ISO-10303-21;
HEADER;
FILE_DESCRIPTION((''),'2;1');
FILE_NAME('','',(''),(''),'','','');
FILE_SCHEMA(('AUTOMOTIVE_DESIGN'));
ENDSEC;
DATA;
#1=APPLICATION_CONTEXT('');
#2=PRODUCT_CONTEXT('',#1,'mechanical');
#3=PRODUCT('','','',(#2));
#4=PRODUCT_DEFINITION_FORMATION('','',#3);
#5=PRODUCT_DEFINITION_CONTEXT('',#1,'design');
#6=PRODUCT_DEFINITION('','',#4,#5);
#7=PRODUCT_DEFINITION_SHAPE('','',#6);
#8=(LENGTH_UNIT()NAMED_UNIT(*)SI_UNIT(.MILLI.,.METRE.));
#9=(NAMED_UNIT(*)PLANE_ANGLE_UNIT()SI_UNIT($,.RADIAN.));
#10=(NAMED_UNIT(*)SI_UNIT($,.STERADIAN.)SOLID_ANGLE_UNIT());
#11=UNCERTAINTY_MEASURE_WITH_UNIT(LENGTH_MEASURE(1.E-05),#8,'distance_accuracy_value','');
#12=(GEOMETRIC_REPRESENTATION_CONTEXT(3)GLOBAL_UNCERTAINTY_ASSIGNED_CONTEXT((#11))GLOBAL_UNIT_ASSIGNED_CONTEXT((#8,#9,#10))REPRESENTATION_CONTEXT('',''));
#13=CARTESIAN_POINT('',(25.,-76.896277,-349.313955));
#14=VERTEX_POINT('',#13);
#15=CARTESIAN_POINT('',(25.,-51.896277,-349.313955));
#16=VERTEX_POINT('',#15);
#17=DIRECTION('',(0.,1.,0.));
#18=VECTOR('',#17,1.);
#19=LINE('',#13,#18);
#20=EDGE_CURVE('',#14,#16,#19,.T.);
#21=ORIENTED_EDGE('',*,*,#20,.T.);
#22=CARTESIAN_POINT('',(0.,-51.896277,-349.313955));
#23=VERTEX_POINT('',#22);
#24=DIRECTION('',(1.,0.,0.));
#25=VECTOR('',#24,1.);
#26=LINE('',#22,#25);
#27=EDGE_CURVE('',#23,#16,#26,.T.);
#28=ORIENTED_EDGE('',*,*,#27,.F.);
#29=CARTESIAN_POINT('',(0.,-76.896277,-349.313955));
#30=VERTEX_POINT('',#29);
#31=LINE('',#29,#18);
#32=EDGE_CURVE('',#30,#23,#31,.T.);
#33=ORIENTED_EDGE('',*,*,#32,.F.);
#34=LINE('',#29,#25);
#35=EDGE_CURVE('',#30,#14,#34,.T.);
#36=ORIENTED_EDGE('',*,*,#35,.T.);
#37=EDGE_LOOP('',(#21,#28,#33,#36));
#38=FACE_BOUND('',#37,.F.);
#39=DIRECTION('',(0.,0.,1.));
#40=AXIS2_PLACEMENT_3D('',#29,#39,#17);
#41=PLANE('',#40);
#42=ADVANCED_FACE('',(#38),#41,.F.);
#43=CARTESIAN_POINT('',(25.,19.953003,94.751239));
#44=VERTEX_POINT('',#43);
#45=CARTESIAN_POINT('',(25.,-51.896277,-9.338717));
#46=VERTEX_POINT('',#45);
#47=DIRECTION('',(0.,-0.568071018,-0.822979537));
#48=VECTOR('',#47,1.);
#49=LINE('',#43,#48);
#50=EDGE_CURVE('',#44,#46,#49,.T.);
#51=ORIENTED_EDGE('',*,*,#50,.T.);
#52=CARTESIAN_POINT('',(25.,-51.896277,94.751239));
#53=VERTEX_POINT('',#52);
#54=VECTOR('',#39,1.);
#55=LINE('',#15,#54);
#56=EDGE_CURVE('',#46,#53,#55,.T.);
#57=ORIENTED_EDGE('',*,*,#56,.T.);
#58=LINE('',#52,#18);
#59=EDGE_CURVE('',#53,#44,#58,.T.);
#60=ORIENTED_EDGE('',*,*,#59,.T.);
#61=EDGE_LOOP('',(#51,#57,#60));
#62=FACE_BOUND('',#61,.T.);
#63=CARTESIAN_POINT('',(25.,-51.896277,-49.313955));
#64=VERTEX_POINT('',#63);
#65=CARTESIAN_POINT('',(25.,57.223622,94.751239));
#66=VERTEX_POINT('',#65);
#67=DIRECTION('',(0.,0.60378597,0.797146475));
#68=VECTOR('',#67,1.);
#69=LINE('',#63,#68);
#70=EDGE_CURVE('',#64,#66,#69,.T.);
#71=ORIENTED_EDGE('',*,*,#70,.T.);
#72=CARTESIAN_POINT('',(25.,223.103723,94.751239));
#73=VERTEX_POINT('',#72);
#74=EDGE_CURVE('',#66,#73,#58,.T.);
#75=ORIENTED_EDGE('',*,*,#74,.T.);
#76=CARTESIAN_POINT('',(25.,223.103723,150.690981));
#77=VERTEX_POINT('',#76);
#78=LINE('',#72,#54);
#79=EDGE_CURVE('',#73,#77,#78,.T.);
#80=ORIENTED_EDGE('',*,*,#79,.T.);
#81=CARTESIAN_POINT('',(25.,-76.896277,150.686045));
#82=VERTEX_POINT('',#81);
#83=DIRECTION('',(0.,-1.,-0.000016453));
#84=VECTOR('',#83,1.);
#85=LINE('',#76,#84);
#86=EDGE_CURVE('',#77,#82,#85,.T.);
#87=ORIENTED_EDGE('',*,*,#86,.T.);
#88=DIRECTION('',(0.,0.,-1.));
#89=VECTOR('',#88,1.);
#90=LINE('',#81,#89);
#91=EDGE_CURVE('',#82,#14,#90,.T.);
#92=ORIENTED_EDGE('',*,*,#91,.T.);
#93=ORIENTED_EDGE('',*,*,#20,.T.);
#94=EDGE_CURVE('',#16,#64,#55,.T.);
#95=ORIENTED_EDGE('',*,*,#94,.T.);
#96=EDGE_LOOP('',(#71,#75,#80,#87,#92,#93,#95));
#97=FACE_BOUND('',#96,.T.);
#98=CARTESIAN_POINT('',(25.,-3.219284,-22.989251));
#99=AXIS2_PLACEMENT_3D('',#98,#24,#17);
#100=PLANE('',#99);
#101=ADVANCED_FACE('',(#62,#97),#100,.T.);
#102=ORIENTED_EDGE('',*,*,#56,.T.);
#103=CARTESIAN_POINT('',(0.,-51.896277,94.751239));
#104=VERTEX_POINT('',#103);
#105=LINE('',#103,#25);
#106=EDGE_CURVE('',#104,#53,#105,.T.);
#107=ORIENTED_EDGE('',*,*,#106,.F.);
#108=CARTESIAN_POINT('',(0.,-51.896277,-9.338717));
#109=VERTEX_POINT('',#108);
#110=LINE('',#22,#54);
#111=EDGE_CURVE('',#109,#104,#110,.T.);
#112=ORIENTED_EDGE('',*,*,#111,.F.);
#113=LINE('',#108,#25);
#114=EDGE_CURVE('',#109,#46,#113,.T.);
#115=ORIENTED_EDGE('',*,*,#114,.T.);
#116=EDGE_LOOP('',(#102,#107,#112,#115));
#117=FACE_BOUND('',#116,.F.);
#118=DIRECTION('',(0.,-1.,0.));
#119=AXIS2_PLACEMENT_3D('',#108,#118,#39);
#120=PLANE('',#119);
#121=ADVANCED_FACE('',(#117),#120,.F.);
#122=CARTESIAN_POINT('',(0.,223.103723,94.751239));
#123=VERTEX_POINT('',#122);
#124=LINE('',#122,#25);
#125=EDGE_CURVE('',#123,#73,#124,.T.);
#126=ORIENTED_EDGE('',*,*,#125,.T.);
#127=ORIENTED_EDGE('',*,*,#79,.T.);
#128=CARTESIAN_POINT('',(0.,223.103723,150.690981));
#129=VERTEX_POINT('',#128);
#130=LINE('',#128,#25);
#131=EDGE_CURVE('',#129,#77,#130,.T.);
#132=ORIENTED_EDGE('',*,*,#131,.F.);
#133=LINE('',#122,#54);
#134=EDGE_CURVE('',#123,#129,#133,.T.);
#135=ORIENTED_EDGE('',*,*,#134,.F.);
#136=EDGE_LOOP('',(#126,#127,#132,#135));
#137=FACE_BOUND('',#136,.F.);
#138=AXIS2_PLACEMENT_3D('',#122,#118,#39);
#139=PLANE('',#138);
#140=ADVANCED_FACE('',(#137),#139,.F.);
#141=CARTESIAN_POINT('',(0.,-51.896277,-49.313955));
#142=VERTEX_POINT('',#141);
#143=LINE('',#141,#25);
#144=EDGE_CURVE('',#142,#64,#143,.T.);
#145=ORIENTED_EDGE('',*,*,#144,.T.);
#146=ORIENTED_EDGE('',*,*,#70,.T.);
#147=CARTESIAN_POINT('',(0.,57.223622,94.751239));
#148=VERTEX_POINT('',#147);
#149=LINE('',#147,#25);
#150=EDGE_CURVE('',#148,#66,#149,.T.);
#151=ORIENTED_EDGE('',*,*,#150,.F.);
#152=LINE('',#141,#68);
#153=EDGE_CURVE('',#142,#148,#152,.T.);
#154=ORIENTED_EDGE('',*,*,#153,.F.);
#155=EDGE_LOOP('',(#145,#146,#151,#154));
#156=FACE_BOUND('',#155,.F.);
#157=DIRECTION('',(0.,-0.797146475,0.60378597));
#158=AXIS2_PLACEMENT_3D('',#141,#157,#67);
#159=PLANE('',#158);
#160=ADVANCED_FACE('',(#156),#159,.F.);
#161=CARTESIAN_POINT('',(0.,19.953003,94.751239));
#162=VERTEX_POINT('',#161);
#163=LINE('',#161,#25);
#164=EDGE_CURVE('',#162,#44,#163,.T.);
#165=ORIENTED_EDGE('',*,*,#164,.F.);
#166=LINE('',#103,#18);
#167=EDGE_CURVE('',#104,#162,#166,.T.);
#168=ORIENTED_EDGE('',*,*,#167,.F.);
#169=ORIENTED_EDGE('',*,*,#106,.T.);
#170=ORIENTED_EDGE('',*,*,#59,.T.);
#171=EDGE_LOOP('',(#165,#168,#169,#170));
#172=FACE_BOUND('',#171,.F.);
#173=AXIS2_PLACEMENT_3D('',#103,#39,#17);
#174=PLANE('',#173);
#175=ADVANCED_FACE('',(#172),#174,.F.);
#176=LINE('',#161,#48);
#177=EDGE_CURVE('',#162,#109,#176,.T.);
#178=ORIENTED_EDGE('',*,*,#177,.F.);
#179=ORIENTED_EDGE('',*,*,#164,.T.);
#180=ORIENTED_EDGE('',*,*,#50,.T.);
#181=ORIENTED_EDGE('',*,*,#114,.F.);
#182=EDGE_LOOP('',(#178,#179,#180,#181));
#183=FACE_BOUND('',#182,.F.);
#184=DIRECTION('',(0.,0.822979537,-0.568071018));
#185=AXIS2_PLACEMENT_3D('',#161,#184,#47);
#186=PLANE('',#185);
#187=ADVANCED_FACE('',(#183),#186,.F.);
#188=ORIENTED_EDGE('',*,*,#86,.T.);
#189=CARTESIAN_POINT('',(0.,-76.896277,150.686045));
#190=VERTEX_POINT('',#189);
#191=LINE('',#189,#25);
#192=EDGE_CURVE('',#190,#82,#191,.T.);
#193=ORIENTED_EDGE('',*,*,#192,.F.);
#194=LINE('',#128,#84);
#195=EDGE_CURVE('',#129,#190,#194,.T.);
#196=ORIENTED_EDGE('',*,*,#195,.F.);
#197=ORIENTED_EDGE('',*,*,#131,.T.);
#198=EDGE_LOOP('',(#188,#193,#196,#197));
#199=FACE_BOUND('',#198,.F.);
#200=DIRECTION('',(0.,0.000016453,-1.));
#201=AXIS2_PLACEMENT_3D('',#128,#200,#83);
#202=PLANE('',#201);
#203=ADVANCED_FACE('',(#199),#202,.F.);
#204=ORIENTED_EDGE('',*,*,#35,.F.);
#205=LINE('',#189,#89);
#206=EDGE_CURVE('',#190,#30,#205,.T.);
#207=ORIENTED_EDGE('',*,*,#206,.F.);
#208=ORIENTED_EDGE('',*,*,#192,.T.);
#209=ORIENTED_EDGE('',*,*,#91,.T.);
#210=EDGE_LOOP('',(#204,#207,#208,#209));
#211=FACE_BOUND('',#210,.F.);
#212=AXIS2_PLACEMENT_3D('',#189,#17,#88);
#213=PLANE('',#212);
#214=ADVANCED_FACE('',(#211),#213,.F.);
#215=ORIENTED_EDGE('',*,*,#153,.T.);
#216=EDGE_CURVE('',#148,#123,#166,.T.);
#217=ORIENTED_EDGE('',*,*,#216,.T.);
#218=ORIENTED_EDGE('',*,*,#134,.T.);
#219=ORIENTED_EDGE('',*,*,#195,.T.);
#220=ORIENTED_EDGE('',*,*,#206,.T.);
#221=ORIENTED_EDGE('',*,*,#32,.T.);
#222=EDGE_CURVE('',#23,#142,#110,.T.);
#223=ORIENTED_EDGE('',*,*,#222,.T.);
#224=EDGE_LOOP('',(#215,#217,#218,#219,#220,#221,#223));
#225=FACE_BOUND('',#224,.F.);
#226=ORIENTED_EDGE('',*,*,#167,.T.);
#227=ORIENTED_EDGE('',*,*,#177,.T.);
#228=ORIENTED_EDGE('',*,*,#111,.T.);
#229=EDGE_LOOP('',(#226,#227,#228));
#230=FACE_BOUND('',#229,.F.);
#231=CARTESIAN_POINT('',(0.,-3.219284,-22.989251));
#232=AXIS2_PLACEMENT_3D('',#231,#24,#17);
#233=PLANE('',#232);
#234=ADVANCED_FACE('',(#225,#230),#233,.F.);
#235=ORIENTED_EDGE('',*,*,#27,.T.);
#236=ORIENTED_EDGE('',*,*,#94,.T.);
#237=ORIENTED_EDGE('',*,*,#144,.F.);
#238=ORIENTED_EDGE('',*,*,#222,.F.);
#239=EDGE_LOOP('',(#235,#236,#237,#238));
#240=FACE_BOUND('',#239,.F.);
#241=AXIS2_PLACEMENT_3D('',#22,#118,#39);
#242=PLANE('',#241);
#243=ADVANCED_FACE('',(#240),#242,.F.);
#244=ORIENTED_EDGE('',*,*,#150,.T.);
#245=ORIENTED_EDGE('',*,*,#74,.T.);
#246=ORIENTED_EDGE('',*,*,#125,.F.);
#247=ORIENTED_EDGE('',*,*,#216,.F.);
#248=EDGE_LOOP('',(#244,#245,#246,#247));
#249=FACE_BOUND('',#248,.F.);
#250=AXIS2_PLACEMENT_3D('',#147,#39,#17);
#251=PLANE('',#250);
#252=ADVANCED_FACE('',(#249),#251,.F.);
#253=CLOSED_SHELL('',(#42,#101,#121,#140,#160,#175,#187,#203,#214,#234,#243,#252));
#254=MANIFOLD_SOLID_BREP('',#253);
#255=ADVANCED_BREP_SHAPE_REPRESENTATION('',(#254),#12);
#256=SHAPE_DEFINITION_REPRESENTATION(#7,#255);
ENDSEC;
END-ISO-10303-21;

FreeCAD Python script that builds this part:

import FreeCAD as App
import Part
import Sketcher
Q = App.Units.Quantity

doc = App.newDocument("Part")
body = doc.addObject("PartDesign::Body", "Body")

# Sketch on YZ plane
sketch1 = body.newObject("Sketcher::SketchObject", "Sketch")
sketch1.AttachmentSupport = (doc.getObject("YZ_Plane"), [""])
sketch1.MapMode = "FlatFace"
sketch1.addGeometry([
    Part.LineSegment(App.Vector(-77, 151, 0), App.Vector(-77, -349, 0)),  # 0
    Part.LineSegment(App.Vector(-77, -349, 0), App.Vector(-52, -349, 0)),  # 1
    Part.LineSegment(App.Vector(-52, -349, 0), App.Vector(-52, -49, 0)),  # 2
    Part.LineSegment(App.Vector(-52, -49, 0), App.Vector(57, 95, 0)),  # 3
    Part.LineSegment(App.Vector(57, 95, 0), App.Vector(223, 95, 0)),  # 4
    Part.LineSegment(App.Vector(223, 95, 0), App.Vector(223, 151, 0)),  # 5
    Part.LineSegment(App.Vector(223, 151, 0), App.Vector(-77, 151, 0)),  # 6
    Part.LineSegment(App.Vector(-52, -9, 0), App.Vector(-52, 95, 0)),  # 7
    Part.LineSegment(App.Vector(-52, 95, 0), App.Vector(20, 95, 0)),  # 8
    Part.LineSegment(App.Vector(20, 95, 0), App.Vector(-52, -9, 0)),  # 9
], False)
sketch1.addConstraint([
    Sketcher.Constraint("Coincident", 0, 2, 1, 1),
    Sketcher.Constraint("Coincident", 1, 2, 2, 1),
    Sketcher.Constraint("Coincident", 2, 2, 3, 1),
    Sketcher.Constraint("Coincident", 3, 2, 4, 1),
    Sketcher.Constraint("Coincident", 4, 2, 5, 1),
    Sketcher.Constraint("Coincident", 5, 2, 6, 1),
    Sketcher.Constraint("Coincident", 6, 2, 0, 1),
    Sketcher.Constraint("Coincident", 7, 2, 8, 1),
    Sketcher.Constraint("Coincident", 8, 2, 9, 1),
    Sketcher.Constraint("Coincident", 9, 2, 7, 1),
    Sketcher.Constraint("Vertical", 0),
    Sketcher.Constraint("Horizontal", 1),
    Sketcher.Constraint("Vertical", 2),
    Sketcher.Constraint("Horizontal", 4),
    Sketcher.Constraint("Vertical", 5),
    Sketcher.Constraint("Vertical", 7),
    Sketcher.Constraint("Horizontal", 8),
    Sketcher.Constraint("Horizontal", 4, 2, 7, 2),
    Sketcher.Constraint("Vertical", 2, 2, 7, 2),
    Sketcher.Constraint("DistanceX", 1, 1, 1, 2, Q("25 mm")),
    Sketcher.Constraint("DistanceY", 0, 2, 0, 1, Q("500 mm")),
    Sketcher.Constraint("DistanceY", 2, 1, 2, 2, Q("300 mm")),
    Sketcher.Constraint("Distance", 6, Q("300 mm")),
    Sketcher.Constraint("DistanceX", 4, 1, 4, 2, Q("165.880101 mm")),
    Sketcher.Constraint("DistanceX", 8, 1, 8, 2, Q("71.84928 mm")),
    Sketcher.Constraint("DistanceY", 5, 1, 5, 2, Q("55.939742 mm")),
    Sketcher.Constraint("DistanceY", 7, 1, 7, 2, Q("104.089956 mm")),
    Sketcher.Constraint("DistanceY", -1, 1, 3, 2, Q("94.751239 mm")),
    Sketcher.Constraint("Distance", 3, Q("180.726126 mm")),
    Sketcher.Constraint("DistanceX", 0, 2, -1, 1, Q("76.896277 mm")),
])
pad1 = body.newObject("PartDesign::Pad", "Pad")
pad1.Profile = sketch1
pad1.Length = 25

doc.recompute()
